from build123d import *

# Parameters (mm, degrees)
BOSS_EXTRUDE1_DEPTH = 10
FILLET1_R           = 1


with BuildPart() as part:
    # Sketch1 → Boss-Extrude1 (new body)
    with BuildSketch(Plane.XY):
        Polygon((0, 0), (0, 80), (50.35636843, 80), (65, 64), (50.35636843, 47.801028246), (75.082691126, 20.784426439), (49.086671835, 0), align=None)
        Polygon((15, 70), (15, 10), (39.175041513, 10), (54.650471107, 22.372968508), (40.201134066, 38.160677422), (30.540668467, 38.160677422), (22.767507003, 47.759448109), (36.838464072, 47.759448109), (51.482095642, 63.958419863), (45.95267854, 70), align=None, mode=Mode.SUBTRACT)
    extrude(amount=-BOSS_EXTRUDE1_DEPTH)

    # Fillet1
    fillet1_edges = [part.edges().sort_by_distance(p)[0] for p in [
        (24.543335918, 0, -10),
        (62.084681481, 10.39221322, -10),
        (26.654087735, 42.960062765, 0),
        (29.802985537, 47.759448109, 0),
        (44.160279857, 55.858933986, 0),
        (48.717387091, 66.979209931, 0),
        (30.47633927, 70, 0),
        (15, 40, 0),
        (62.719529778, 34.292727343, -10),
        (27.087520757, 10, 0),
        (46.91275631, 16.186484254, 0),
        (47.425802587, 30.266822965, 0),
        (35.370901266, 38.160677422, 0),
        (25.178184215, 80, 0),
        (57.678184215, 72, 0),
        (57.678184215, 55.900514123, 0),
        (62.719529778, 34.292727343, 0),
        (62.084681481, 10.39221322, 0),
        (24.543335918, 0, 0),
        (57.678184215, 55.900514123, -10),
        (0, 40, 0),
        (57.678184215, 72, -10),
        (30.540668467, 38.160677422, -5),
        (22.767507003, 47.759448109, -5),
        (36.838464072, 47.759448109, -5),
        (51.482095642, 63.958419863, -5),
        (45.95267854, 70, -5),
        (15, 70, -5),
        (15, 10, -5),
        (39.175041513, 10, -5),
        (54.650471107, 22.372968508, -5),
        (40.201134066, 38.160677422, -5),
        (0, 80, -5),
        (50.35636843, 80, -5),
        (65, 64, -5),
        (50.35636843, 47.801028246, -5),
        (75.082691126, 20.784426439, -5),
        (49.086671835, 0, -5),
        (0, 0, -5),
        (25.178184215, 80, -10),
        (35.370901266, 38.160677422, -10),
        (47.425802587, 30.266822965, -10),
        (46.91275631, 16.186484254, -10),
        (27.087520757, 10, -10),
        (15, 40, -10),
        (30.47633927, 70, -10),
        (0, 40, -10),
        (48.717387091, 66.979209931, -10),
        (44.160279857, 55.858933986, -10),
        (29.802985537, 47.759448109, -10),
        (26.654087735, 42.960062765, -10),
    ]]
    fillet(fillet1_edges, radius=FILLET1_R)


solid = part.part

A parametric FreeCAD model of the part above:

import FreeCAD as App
import Part
import Sketcher

V = App.Vector
Q = App.Units.Quantity


def add_polygon(sketch, points):
    """Adds a closed chain of lines whose ends are joined by coincident constraints."""
    first, n = sketch.GeometryCount, len(points)
    for a, b in zip(points, points[1:] + points[:1]):
        sketch.addGeometry(Part.LineSegment(App.Vector(*a, 0), App.Vector(*b, 0)), False)
    for i in range(n):
        sketch.addConstraint(Sketcher.Constraint("Coincident", first + i, 2, first + (i + 1) % n, 1))

doc = App.newDocument("Part")
body = doc.addObject("PartDesign::Body", "Body")

# Sketch on XY plane
sketch1 = body.newObject("Sketcher::SketchObject", "Sketch")
sketch1.AttachmentSupport = (doc.getObject("XY_Plane"), [""])
sketch1.MapMode = "FlatFace"
add_polygon(sketch1, [(0, 80), (0, 0), (49, 0), (75, 21), (50, 48), (65, 64), (50, 80)])  # lines 0-6
add_polygon(sketch1, [(15, 70), (46, 70), (51, 64), (37, 48), (23, 48), (31, 38), (40, 38), (55, 22), (39, 10), (15, 10)])  # lines 7-16
sketch1.addConstraint(Sketcher.Constraint("Vertical", 0))
sketch1.addConstraint(Sketcher.Constraint("Horizontal", 1))
sketch1.addConstraint(Sketcher.Constraint("Horizontal", 6))
sketch1.addConstraint(Sketcher.Constraint("Horizontal", 7))
sketch1.addConstraint(Sketcher.Constraint("Horizontal", 10))
sketch1.addConstraint(Sketcher.Constraint("Horizontal", 12))
sketch1.addConstraint(Sketcher.Constraint("Horizontal", 15))
sketch1.addConstraint(Sketcher.Constraint("Vertical", 16))
sketch1.addConstraint(Sketcher.Constraint("Coincident", 0, 2, -1, 1))
sketch1.addConstraint(Sketcher.Constraint("Parallel", 3, 5))
sketch1.addConstraint(Sketcher.Constraint("Parallel", 5, 8))
sketch1.addConstraint(Sketcher.Constraint("Parallel", 4, 9))
sketch1.addConstraint(Sketcher.Constraint("Parallel", 8, 13))
sketch1.addConstraint(Sketcher.Constraint("Parallel", 2, 14))
sketch1.addConstraint(Sketcher.Constraint("Vertical", 3, 2, 5, 2))
sketch1.addConstraint(Sketcher.Constraint("Equal", 4, 9))
sketch1.addConstraint(Sketcher.Constraint("DistanceY", 0, 2, 0, 1, Q("80 mm")))
sketch1.addConstraint(Sketcher.Constraint("DistanceY", 16, 1, 16, 2, Q("60 mm")))
sketch1.addConstraint(Sketcher.Constraint("DistanceX", -1, 1, 4, 2, Q("65 mm")))
sketch1.addConstraint(Sketcher.Constraint("DistanceY", -1, 1, 4, 2, Q("64 mm")))
sketch1.addConstraint(Sketcher.Constraint("DistanceY", -1, 1, 7, 2, Q("70 mm")))
sketch1.addConstraint(Sketcher.Constraint("DistanceX", -1, 1, 15, 2, Q("15 mm")))
sketch1.addConstraint(Sketcher.Constraint("DistanceX", 1, 1, 1, 2, Q("49.086672 mm")))
sketch1.addConstraint(Sketcher.Constraint("DistanceX", 6, 2, 6, 1, Q("50.356368 mm")))
sketch1.addConstraint(Sketcher.Constraint("DistanceX", 7, 1, 7, 2, Q("30.952679 mm")))
sketch1.addConstraint(Sketcher.Constraint("DistanceX", 15, 2, 15, 1, Q("24.175042 mm")))
sketch1.addConstraint(Sketcher.Constraint("DistanceY", 2, 2, 3, 2, Q("27.016602 mm")))
sketch1.addConstraint(Sketcher.Constraint("DistanceX", 11, 2, 3, 2, Q("19.8157 mm")))
sketch1.addConstraint(Sketcher.Constraint("DistanceX", 1, 2, 13, 2, Q("5.563799 mm")))
sketch1.addConstraint(Sketcher.Constraint("Distance", 2, Q("33.28341 mm")))
sketch1.addConstraint(Sketcher.Constraint("Distance", 8, Q("8.189942 mm")))
sketch1.addConstraint(Sketcher.Constraint("DistanceX", 10, 2, 10, 1, Q("14.070957 mm")))
sketch1.addConstraint(Sketcher.Constraint("DistanceX", 12, 1, 12, 2, Q("9.660466 mm")))
pad1 = body.newObject("PartDesign::Pad", "Pad")
pad1.Profile = sketch1
pad1.Length = 10
pad1.Reversed = True
doc.recompute()

fillet = body.newObject("PartDesign::Fillet", "Fillet")
fillet.Base = (pad1, ["Edge1"])
fillet.UseAllEdges = True
fillet.Radius = 1

doc.recompute()
